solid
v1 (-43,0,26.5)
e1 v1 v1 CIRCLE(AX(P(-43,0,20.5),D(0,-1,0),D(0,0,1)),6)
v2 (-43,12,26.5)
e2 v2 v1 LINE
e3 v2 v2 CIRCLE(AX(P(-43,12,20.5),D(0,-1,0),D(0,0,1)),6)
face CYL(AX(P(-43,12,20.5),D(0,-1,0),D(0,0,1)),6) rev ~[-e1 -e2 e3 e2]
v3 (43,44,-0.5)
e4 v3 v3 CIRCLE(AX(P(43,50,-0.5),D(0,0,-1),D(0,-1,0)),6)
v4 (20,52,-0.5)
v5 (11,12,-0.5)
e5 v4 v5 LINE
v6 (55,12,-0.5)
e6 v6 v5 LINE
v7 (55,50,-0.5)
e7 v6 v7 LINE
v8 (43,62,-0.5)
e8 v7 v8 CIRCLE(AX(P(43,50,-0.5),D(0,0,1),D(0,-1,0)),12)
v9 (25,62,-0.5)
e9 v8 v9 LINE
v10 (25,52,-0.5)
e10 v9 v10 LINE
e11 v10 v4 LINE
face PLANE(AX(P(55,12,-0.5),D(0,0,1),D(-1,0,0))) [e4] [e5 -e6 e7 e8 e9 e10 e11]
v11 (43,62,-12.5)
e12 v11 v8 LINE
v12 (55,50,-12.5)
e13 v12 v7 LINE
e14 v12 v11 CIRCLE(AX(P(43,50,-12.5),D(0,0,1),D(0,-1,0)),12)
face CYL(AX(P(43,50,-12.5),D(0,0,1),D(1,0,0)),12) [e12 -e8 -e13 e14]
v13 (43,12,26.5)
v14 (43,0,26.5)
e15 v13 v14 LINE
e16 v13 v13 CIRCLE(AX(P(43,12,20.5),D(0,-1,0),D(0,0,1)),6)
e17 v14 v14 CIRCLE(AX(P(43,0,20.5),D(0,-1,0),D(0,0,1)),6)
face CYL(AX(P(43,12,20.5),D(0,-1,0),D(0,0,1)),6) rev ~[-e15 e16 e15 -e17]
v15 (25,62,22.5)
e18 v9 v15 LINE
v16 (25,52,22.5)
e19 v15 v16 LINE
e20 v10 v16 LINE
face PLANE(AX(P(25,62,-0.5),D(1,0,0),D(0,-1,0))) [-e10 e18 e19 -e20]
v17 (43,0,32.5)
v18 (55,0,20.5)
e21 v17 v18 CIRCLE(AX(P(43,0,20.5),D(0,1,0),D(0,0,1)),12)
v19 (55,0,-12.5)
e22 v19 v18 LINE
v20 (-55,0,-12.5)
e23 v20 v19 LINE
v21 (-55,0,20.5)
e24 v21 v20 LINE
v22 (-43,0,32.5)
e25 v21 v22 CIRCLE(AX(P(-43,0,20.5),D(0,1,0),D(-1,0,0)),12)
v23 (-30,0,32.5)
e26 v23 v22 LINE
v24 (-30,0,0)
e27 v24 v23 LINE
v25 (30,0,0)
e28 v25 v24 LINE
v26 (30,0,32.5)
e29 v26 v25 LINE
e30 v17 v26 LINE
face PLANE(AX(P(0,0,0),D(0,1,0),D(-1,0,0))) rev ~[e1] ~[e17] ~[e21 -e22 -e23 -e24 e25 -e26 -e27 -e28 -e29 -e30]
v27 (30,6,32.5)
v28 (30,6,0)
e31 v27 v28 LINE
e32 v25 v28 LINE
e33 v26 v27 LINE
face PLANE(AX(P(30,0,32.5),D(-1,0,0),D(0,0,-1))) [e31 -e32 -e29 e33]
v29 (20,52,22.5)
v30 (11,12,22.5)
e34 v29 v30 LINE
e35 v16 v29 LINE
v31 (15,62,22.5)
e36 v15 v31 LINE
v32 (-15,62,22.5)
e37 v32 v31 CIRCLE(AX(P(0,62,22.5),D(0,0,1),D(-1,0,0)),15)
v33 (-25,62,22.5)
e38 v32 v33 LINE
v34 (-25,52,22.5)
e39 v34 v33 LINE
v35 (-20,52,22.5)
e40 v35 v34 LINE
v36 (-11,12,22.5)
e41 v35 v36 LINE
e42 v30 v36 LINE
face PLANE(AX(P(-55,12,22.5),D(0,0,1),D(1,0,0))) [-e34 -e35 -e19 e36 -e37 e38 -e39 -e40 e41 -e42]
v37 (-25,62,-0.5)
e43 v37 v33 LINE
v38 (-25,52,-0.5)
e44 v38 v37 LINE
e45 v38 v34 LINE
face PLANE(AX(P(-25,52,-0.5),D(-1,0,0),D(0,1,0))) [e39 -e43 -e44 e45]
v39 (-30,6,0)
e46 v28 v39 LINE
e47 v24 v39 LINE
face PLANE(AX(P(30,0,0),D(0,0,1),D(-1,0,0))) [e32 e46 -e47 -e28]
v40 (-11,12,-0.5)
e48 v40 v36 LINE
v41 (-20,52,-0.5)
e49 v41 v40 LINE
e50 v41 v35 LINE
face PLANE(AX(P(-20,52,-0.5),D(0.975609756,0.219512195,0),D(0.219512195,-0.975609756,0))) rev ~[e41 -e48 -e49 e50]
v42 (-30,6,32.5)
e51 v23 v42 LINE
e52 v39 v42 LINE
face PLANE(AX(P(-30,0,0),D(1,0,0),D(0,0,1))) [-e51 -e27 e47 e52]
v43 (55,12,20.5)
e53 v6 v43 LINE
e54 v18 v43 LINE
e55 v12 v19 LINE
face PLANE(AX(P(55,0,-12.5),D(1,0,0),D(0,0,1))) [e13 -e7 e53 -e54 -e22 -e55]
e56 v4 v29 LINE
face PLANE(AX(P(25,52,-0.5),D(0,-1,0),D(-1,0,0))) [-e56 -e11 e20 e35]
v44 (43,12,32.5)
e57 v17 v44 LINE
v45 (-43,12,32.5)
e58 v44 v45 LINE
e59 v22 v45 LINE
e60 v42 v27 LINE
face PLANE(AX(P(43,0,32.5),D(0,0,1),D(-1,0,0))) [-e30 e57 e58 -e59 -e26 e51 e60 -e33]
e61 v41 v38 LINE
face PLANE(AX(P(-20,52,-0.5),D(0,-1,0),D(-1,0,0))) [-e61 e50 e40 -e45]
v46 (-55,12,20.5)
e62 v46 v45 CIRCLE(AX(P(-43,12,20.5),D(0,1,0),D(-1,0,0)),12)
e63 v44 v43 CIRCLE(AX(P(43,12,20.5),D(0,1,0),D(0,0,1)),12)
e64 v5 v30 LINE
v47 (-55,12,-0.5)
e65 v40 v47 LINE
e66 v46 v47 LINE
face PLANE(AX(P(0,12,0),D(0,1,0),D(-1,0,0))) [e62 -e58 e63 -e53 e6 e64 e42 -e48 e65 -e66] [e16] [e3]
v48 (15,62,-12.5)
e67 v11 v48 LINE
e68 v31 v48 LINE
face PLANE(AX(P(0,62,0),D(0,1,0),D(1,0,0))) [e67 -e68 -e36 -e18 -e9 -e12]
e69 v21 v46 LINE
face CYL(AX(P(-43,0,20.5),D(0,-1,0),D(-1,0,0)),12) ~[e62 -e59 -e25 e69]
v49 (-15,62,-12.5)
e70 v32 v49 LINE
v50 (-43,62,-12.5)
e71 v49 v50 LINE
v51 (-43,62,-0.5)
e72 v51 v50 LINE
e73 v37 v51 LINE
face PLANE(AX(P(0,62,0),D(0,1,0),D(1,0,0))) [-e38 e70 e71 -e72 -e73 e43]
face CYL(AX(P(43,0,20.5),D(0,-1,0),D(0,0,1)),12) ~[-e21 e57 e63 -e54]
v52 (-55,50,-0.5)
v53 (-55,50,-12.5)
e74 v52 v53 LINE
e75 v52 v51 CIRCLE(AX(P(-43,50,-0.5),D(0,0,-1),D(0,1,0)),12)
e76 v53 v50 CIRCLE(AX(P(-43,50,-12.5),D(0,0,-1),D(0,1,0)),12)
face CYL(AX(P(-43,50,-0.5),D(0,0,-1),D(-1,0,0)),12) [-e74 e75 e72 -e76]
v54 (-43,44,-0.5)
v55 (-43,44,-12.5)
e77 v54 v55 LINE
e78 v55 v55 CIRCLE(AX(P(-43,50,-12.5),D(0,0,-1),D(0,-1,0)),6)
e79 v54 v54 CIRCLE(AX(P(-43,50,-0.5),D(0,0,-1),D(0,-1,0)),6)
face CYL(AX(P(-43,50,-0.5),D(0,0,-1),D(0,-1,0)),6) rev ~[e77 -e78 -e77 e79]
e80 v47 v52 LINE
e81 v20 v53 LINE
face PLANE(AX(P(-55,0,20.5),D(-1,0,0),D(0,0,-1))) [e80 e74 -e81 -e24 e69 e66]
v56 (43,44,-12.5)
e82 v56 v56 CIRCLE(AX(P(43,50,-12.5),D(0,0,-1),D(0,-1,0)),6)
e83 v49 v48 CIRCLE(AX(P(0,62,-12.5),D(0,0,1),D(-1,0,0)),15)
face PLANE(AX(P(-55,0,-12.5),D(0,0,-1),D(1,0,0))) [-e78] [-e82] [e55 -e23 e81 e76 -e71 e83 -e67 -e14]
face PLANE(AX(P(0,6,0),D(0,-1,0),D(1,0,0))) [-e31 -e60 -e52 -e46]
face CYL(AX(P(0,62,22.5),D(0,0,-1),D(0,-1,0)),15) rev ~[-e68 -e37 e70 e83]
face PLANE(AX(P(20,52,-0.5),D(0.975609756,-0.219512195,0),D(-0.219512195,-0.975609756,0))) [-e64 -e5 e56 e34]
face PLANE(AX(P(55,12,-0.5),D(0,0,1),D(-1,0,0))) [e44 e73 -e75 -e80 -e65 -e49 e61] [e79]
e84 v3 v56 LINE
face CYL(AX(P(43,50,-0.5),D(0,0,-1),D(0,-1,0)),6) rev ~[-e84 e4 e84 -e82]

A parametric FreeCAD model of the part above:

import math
import FreeCAD as App
import Part
import Sketcher


def edges_at(feature, points):
    """Names of the edges that pass closest to the given points."""
    edges = feature.Shape.Edges
    near = lambda p: min(range(len(edges)), key=lambda i: edges[i].distToShape(Part.Vertex(*p))[0])
    return sorted({f"Edge{near(p) + 1}" for p in points})

doc = App.newDocument("Part")
body = doc.addObject("PartDesign::Body", "Body")

sketch1 = doc.addObject("Sketcher::SketchObject", "Sketch")
body.addObject(sketch1)
sketch1.AttachmentSupport = (doc.XZ_Plane, [""])
sketch1.MapMode = "FlatFace"
sketch1.addGeometry(Part.LineSegment(App.Vector(55, -12, 0), App.Vector(-55, -12, 0)), False)
sketch1.addGeometry(Part.LineSegment(App.Vector(-55, -12, 0), App.Vector(-55, 20, 0)), False)
sketch1.addGeometry(Part.ArcOfCircle(Part.Circle(App.Vector(-43, 20, 0), App.Vector(0, 0, 1), 12), math.radians(90), math.radians(180)), False)
sketch1.addGeometry(Part.LineSegment(App.Vector(-43, 32, 0), App.Vector(43, 32, 0)), False)
sketch1.addGeometry(Part.ArcOfCircle(Part.Circle(App.Vector(43, 20, 0), App.Vector(0, 0, 1), 12), math.radians(0), math.radians(90)), False)
sketch1.addGeometry(Part.LineSegment(App.Vector(55, 20, 0), App.Vector(55, -12, 0)), False)
sketch1.addConstraint(Sketcher.Constraint("Coincident", 0, 2, 1, 1))
sketch1.addConstraint(Sketcher.Constraint("Tangent", 1, 2, 2, 2))
sketch1.addConstraint(Sketcher.Constraint("Tangent", 2, 1, 3, 1))
sketch1.addConstraint(Sketcher.Constraint("Tangent", 3, 2, 4, 2))
sketch1.addConstraint(Sketcher.Constraint("Tangent", 4, 1, 5, 1))
sketch1.addConstraint(Sketcher.Constraint("Coincident", 5, 2, 0, 1))
sketch1.addConstraint(Sketcher.Constraint("Horizontal", 0))
sketch1.addConstraint(Sketcher.Constraint("Vertical", 1))
sketch1.addConstraint(Sketcher.Constraint("Horizontal", 3))
sketch1.addConstraint(Sketcher.Constraint("Vertical", 5))
sketch1.addConstraint(Sketcher.Constraint("Equal", 2, 4))
sketch1.addConstraint(Sketcher.Constraint("Radius", 2, 12.0))
sketch1.addConstraint(Sketcher.Constraint("DistanceX", 0, 2, 0, 1, 110.0))
sketch1.addConstraint(Sketcher.Constraint("DistanceY", 0, 2, 2, 1, 45.0))
sketch1.addConstraint(Sketcher.Constraint("DistanceX", 2, 3, -1, 1, 43.0))
sketch1.addConstraint(Sketcher.Constraint("DistanceY", -1, 1, 2, 3, 20.5))
pad1 = doc.addObject("PartDesign::Pad", "Pad")
body.addObject(pad1)
pad1.Profile = sketch1
pad1.Length = 12
pad1.Reversed = True

sketch2 = doc.addObject("Sketcher::SketchObject", "Sketch001")
body.addObject(sketch2)
sketch2.AttachmentSupport = (doc.XZ_Plane, [""])
sketch2.MapMode = "FlatFace"
sketch2.AttachmentOffset = App.Placement(App.Vector(0, 0, -12), App.Rotation())
sketch2.addGeometry(Part.LineSegment(App.Vector(55, 0, 0), App.Vector(55, -12, 0)), False)
sketch2.addGeometry(Part.LineSegment(App.Vector(55, -12, 0), App.Vector(-55, -12, 0)), False)
sketch2.addGeometry(Part.LineSegment(App.Vector(-55, -12, 0), App.Vector(-55, 0, 0)), False)
sketch2.addGeometry(Part.LineSegment(App.Vector(-55, 0, 0), App.Vector(55, 0, 0)), False)
sketch2.addConstraint(Sketcher.Constraint("Coincident", 0, 2, 1, 1))
sketch2.addConstraint(Sketcher.Constraint("Coincident", 1, 2, 2, 1))
sketch2.addConstraint(Sketcher.Constraint("Coincident", 2, 2, 3, 1))
sketch2.addConstraint(Sketcher.Constraint("Coincident", 3, 2, 0, 1))
sketch2.addConstraint(Sketcher.Constraint("Vertical", 0))
sketch2.addConstraint(Sketcher.Constraint("Horizontal", 1))
sketch2.addConstraint(Sketcher.Constraint("Vertical", 2))
sketch2.addConstraint(Sketcher.Constraint("Horizontal", 3))
sketch2.addConstraint(Sketcher.Constraint("DistanceY", 0, 2, 0, 1, 12.0))
sketch2.addConstraint(Sketcher.Constraint("DistanceX", 1, 2, 1, 1, 110.0))
sketch2.addConstraint(Sketcher.Constraint("DistanceX", -1, 1, 0, 2, 55.0))
sketch2.addConstraint(Sketcher.Constraint("DistanceY", 0, 2, -1, 1, 12.5))
pad2 = doc.addObject("PartDesign::Pad", "Pad001")
body.addObject(pad2)
pad2.Profile = sketch2
pad2.Length = 50
pad2.Reversed = True
doc.recompute()

fillet = doc.addObject("PartDesign::Fillet", "Fillet")
body.addObject(fillet)
fillet.Base = (pad2, edges_at(pad2, [(55, 62, -6.5), (-55, 62, -6.5)]))
fillet.Radius = 12

sketch3 = doc.addObject("Sketcher::SketchObject", "Sketch002")
body.addObject(sketch3)
sketch3.AttachmentSupport = (doc.XY_Plane, [""])
sketch3.MapMode = "FlatFace"
sketch3.AttachmentOffset = App.Placement(App.Vector(0, 0, -0.5), App.Rotation())
sketch3.addGeometry(Part.LineSegment(App.Vector(25, 52, 0), App.Vector(25, 62, 0)), False)
sketch3.addGeometry(Part.LineSegment(App.Vector(25, 62, 0), App.Vector(-25, 62, 0)), False)
sketch3.addGeometry(Part.LineSegment(App.Vector(-25, 62, 0), App.Vector(-25, 52, 0)), False)
sketch3.addGeometry(Part.LineSegment(App.Vector(-25, 52, 0), App.Vector(-20, 52, 0)), False)
sketch3.addGeometry(Part.LineSegment(App.Vector(-20, 52, 0), App.Vector(-11, 12, 0)), False)
sketch3.addGeometry(Part.LineSegment(App.Vector(-11, 12, 0), App.Vector(11, 12, 0)), False)
sketch3.addGeometry(Part.LineSegment(App.Vector(11, 12, 0), App.Vector(20, 52, 0)), False)
sketch3.addGeometry(Part.LineSegment(App.Vector(20, 52, 0), App.Vector(25, 52, 0)), False)
sketch3.addConstraint(Sketcher.Constraint("Coincident", 0, 2, 1, 1))
sketch3.addConstraint(Sketcher.Constraint("Coincident", 1, 2, 2, 1))
sketch3.addConstraint(Sketcher.Constraint("Coincident", 2, 2, 3, 1))
sketch3.addConstraint(Sketcher.Constraint("Coincident", 3, 2, 4, 1))
sketch3.addConstraint(Sketcher.Constraint("Coincident", 4, 2, 5, 1))
sketch3.addConstraint(Sketcher.Constraint("Coincident", 5, 2, 6, 1))
sketch3.addConstraint(Sketcher.Constraint("Coincident", 6, 2, 7, 1))
sketch3.addConstraint(Sketcher.Constraint("Coincident", 7, 2, 0, 1))
sketch3.addConstraint(Sketcher.Constraint("Vertical", 0))
sketch3.addConstraint(Sketcher.Constraint("Horizontal", 1))
sketch3.addConstraint(Sketcher.Constraint("Vertical", 2))
sketch3.addConstraint(Sketcher.Constraint("Horizontal", 3))
sketch3.addConstraint(Sketcher.Constraint("Horizontal", 5))
sketch3.addConstraint(Sketcher.Constraint("Horizontal", 7))
sketch3.addConstraint(Sketcher.Constraint("Symmetric", 3, 2, 6, 2, -2))
sketch3.addConstraint(Sketcher.Constraint("Equal", 3, 7))
sketch3.addConstraint(Sketcher.Constraint("Equal", 4, 6))
sketch3.addConstraint(Sketcher.Constraint("DistanceX", 1, 2, 1, 1, 50.0))
sketch3.addConstraint(Sketcher.Constraint("DistanceY", 0, 1, 0, 2, 10.0))
sketch3.addConstraint(Sketcher.Constraint("DistanceY", 4, 2, 1, 2, 50.0))
sketch3.addConstraint(Sketcher.Constraint("DistanceX", 3, 1, 3, 2, 5.0))
sketch3.addConstraint(Sketcher.Constraint("DistanceX", 5, 1, 5, 2, 22.0))
sketch3.addConstraint(Sketcher.Constraint("DistanceY", -1, 1, 0, 2, 62.0))
pad3 = doc.addObject("PartDesign::Pad", "Pad002")
body.addObject(pad3)
pad3.Profile = sketch3
pad3.Length = 23

sketch4 = doc.addObject("Sketcher::SketchObject", "Sketch003")
body.addObject(sketch4)
sketch4.AttachmentSupport = (doc.XY_Plane, [""])
sketch4.MapMode = "FlatFace"
sketch4.AttachmentOffset = App.Placement(App.Vector(0, 0, 22.5), App.Rotation())
sketch4.addGeometry(Part.Circle(App.Vector(0, 62, 0), App.Vector(0, 0, 1), 15), False)
sketch4.addConstraint(Sketcher.Constraint("PointOnObject", 0, 3, -2))
sketch4.addConstraint(Sketcher.Constraint("Diameter", 0, 30.0))
sketch4.addConstraint(Sketcher.Constraint("DistanceY", -1, 1, 0, 3, 62.0))
doc.recompute()
hole = doc.addObject("PartDesign::Hole", "Hole")
body.addObject(hole)
hole.Profile = sketch4
hole.ThreadType = "None"
hole.Diameter = 30
hole.DepthType = "ThroughAll"

sketch5 = doc.addObject("Sketcher::SketchObject", "Sketch004")
body.addObject(sketch5)
sketch5.AttachmentSupport = (doc.XY_Plane, [""])
sketch5.MapMode = "FlatFace"
sketch5.AttachmentOffset = App.Placement(App.Vector(0, 0, -0.5), App.Rotation())
sketch5.addGeometry(Part.Circle(App.Vector(-43, 50, 0), App.Vector(0, 0, 1), 6), False)
sketch5.addGeometry(Part.Circle(App.Vector(43, 50, 0), App.Vector(0, 0, 1), 6), False)
sketch5.addConstraint(Sketcher.Constraint("Equal", 0, 1))
sketch5.addConstraint(Sketcher.Constraint("Symmetric", 0, 3, 1, 3, -2))
sketch5.addConstraint(Sketcher.Constraint("Diameter", 0, 12.0))
sketch5.addConstraint(Sketcher.Constraint("DistanceX", 0, 3, -1, 1, 43.0))
sketch5.addConstraint(Sketcher.Constraint("DistanceY", -1, 1, 0, 3, 50.0))
doc.recompute()
hole2 = doc.addObject("PartDesign::Hole", "Hole001")
body.addObject(hole2)
hole2.Profile = sketch5
hole2.ThreadType = "None"
hole2.Diameter = 12
hole2.DepthType = "ThroughAll"

sketch6 = doc.addObject("Sketcher::SketchObject", "Sketch005")
body.addObject(sketch6)
sketch6.AttachmentSupport = (doc.XZ_Plane, [""])
sketch6.MapMode = "FlatFace"
sketch6.AttachmentOffset = App.Placement(App.Vector(0, 0, -12), App.Rotation())
sketch6.addGeometry(Part.Circle(App.Vector(-43, 20, 0), App.Vector(0, 0, 1), 6), False)
sketch6.addGeometry(Part.Circle(App.Vector(43, 20, 0), App.Vector(0, 0, 1), 6), False)
sketch6.addConstraint(Sketcher.Constraint("Equal", 0, 1))
sketch6.addConstraint(Sketcher.Constraint("Symmetric", 0, 3, 1, 3, -2))
sketch6.addConstraint(Sketcher.Constraint("Diameter", 0, 12.0))
sketch6.addConstraint(Sketcher.Constraint("DistanceX", 0, 3, -1, 1, 43.0))
sketch6.addConstraint(Sketcher.Constraint("DistanceY", -1, 1, 0, 3, 20.5))
doc.recompute()
hole3 = doc.addObject("PartDesign::Hole", "Hole002")
body.addObject(hole3)
hole3.Profile = sketch6
hole3.ThreadType = "None"
hole3.Diameter = 12
hole3.DepthType = "ThroughAll"
hole3.Reversed = True

sketch7 = doc.addObject("Sketcher::SketchObject", "Sketch006")
body.addObject(sketch7)
sketch7.AttachmentSupport = (doc.XZ_Plane, [""])
sketch7.MapMode = "FlatFace"
sketch7.addGeometry(Part.LineSegment(App.Vector(30, 32, 0), App.Vector(-30, 32, 0)), False)
sketch7.addGeometry(Part.LineSegment(App.Vector(-30, 32, 0), App.Vector(-30, 0, 0)), False)
sketch7.addGeometry(Part.LineSegment(App.Vector(-30, 0, 0), App.Vector(30, 0, 0)), False)
sketch7.addGeometry(Part.LineSegment(App.Vector(30, 0, 0), App.Vector(30, 32, 0)), False)
sketch7.addConstraint(Sketcher.Constraint("Coincident", 0, 2, 1, 1))
sketch7.addConstraint(Sketcher.Constraint("Coincident", 1, 2, 2, 1))
sketch7.addConstraint(Sketcher.Constraint("Coincident", 2, 2, 3, 1))
sketch7.addConstraint(Sketcher.Constraint("Coincident", 3, 2, 0, 1))
sketch7.addConstraint(Sketcher.Constraint("Horizontal", 0))
sketch7.addConstraint(Sketcher.Constraint("Vertical", 1))
sketch7.addConstraint(Sketcher.Constraint("Horizontal", 2))
sketch7.addConstraint(Sketcher.Constraint("Vertical", 3))
sketch7.addConstraint(Sketcher.Constraint("Symmetric", 1, 2, 2, 2, -1, 1))
sketch7.addConstraint(Sketcher.Constraint("DistanceX", 0, 2, 0, 1, 60.0))
sketch7.addConstraint(Sketcher.Constraint("DistanceY", 1, 2, 1, 1, 32.5))
pocket1 = doc.addObject("PartDesign::Pocket", "Pocket")
body.addObject(pocket1)
pocket1.Profile = sketch7
pocket1.Length = 6

doc.recompute()
